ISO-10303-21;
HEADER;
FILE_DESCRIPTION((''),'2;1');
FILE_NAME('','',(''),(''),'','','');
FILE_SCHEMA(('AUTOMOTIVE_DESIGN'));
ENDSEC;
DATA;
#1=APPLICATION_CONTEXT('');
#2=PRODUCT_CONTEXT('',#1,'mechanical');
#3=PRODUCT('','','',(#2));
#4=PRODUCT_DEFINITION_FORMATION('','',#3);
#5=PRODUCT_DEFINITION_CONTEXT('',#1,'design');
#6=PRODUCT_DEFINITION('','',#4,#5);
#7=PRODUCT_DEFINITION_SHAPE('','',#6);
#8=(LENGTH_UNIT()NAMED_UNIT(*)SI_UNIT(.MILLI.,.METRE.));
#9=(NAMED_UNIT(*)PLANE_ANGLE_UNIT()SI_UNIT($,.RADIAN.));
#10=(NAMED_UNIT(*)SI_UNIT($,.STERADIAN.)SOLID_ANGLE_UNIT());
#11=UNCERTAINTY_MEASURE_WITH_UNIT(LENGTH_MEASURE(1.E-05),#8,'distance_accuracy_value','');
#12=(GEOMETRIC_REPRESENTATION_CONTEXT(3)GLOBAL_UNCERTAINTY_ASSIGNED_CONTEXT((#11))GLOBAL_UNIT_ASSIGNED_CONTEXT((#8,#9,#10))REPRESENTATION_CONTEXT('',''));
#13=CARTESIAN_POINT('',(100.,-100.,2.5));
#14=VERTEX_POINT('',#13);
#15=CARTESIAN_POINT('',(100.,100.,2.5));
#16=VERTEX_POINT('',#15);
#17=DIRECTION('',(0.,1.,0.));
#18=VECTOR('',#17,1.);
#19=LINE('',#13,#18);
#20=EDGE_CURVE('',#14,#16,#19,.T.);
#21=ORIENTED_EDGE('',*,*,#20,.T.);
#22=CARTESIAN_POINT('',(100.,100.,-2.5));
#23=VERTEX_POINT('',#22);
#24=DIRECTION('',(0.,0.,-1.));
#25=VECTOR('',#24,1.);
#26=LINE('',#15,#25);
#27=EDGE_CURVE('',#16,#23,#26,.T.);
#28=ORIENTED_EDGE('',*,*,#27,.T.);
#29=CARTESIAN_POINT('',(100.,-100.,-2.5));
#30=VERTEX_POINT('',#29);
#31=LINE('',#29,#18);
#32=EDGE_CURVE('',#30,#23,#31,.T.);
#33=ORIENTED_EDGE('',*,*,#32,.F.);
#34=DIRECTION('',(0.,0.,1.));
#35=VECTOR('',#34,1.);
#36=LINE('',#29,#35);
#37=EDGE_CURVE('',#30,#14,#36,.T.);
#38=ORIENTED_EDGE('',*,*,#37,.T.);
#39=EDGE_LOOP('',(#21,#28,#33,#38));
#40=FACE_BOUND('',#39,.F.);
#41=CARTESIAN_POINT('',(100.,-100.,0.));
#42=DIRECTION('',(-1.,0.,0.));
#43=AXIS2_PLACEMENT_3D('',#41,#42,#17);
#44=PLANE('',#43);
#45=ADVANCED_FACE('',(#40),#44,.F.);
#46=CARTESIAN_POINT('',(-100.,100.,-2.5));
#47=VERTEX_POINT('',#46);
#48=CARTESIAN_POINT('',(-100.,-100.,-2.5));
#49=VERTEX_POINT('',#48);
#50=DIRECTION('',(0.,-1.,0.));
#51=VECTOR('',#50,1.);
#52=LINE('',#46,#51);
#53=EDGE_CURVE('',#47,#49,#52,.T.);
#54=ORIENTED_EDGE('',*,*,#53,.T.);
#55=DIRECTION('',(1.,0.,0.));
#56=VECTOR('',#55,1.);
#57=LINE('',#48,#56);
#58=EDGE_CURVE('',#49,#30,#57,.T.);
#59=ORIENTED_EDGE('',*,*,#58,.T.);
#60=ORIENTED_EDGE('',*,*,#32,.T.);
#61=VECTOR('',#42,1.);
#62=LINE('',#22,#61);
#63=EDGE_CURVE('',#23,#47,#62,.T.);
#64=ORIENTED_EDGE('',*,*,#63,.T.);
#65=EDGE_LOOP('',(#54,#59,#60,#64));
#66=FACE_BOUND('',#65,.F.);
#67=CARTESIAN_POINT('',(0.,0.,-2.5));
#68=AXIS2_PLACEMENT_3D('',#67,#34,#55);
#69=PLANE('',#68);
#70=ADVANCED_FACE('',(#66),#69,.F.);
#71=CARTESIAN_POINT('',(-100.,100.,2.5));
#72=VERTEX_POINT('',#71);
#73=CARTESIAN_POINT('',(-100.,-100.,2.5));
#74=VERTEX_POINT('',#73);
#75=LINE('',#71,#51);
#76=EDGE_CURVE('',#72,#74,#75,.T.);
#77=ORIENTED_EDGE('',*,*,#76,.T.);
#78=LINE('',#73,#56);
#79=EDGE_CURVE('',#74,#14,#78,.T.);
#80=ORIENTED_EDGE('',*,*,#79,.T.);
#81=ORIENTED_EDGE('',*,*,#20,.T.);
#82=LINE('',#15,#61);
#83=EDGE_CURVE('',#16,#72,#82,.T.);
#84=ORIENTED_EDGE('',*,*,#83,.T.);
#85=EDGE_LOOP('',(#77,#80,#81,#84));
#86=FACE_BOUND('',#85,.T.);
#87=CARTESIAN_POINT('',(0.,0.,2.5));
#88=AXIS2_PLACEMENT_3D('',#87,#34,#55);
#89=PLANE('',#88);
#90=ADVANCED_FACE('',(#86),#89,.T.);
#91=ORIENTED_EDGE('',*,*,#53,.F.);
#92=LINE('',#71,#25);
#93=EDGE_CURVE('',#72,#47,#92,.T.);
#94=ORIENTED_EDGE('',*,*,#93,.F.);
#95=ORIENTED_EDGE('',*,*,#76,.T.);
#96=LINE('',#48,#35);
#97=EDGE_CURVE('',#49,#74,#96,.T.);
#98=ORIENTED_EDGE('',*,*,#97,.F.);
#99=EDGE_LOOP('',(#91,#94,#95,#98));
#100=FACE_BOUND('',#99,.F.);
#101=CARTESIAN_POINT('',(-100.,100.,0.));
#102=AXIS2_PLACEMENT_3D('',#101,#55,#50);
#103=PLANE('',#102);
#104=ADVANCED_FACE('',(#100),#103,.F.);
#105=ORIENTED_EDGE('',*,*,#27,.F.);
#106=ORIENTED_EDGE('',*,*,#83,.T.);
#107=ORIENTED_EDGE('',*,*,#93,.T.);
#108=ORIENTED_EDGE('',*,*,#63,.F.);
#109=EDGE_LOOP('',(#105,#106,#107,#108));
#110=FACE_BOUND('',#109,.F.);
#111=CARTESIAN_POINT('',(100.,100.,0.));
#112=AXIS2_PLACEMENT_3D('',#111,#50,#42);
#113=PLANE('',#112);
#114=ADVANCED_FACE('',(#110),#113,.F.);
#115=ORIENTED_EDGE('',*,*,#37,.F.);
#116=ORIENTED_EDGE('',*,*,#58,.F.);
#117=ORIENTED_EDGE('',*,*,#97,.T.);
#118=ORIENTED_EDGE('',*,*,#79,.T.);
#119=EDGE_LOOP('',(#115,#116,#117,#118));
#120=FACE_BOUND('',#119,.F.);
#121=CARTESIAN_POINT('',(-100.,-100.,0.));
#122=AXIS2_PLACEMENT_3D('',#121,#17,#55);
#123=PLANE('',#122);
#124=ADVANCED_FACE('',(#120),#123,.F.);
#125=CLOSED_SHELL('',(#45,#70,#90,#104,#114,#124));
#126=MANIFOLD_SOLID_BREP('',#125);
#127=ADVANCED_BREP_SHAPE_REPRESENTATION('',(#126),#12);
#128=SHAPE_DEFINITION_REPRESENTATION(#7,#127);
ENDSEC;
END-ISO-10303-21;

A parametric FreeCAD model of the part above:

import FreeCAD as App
import Part
import Sketcher
from FreeCAD import Vector
Q = App.Units.Quantity


def add_polygon(sketch, points):
    """Adds a closed chain of lines whose ends are joined by coincident constraints."""
    first, n = sketch.GeometryCount, len(points)
    for a, b in zip(points, points[1:] + points[:1]):
        sketch.addGeometry(Part.LineSegment(App.Vector(*a, 0), App.Vector(*b, 0)), False)
    for i in range(n):
        sketch.addConstraint(Sketcher.Constraint("Coincident", first + i, 2, first + (i + 1) % n, 1))

doc = App.newDocument("Part")
body = doc.addObject("PartDesign::Body", "Body")

sketch1 = body.newObject("Sketcher::SketchObject", "Sketch")
sketch1.AttachmentSupport = (doc.getObject("XY_Plane"), [""])
sketch1.MapMode = "FlatFace"
add_polygon(sketch1, [(-100, 100), (-100, -100), (100, -100), (100, 100)])
sketch1.addConstraint([
    Sketcher.Constraint("Vertical", 0),
    Sketcher.Constraint("Horizontal", 1),
    Sketcher.Constraint("Vertical", 2),
    Sketcher.Constraint("Horizontal", 3),
    Sketcher.Constraint("Symmetric", 0, 2, 2, 2, -1, 1),
    Sketcher.Constraint("Equal", 3, 0),
    Sketcher.Constraint("DistanceX", 0, 2, -1, 1, Q("100 mm")),
])
pad1 = body.newObject("PartDesign::Pad", "Pad")
pad1.Profile = sketch1
pad1.Length = 5
pad1.Midplane = True

doc.recompute()
